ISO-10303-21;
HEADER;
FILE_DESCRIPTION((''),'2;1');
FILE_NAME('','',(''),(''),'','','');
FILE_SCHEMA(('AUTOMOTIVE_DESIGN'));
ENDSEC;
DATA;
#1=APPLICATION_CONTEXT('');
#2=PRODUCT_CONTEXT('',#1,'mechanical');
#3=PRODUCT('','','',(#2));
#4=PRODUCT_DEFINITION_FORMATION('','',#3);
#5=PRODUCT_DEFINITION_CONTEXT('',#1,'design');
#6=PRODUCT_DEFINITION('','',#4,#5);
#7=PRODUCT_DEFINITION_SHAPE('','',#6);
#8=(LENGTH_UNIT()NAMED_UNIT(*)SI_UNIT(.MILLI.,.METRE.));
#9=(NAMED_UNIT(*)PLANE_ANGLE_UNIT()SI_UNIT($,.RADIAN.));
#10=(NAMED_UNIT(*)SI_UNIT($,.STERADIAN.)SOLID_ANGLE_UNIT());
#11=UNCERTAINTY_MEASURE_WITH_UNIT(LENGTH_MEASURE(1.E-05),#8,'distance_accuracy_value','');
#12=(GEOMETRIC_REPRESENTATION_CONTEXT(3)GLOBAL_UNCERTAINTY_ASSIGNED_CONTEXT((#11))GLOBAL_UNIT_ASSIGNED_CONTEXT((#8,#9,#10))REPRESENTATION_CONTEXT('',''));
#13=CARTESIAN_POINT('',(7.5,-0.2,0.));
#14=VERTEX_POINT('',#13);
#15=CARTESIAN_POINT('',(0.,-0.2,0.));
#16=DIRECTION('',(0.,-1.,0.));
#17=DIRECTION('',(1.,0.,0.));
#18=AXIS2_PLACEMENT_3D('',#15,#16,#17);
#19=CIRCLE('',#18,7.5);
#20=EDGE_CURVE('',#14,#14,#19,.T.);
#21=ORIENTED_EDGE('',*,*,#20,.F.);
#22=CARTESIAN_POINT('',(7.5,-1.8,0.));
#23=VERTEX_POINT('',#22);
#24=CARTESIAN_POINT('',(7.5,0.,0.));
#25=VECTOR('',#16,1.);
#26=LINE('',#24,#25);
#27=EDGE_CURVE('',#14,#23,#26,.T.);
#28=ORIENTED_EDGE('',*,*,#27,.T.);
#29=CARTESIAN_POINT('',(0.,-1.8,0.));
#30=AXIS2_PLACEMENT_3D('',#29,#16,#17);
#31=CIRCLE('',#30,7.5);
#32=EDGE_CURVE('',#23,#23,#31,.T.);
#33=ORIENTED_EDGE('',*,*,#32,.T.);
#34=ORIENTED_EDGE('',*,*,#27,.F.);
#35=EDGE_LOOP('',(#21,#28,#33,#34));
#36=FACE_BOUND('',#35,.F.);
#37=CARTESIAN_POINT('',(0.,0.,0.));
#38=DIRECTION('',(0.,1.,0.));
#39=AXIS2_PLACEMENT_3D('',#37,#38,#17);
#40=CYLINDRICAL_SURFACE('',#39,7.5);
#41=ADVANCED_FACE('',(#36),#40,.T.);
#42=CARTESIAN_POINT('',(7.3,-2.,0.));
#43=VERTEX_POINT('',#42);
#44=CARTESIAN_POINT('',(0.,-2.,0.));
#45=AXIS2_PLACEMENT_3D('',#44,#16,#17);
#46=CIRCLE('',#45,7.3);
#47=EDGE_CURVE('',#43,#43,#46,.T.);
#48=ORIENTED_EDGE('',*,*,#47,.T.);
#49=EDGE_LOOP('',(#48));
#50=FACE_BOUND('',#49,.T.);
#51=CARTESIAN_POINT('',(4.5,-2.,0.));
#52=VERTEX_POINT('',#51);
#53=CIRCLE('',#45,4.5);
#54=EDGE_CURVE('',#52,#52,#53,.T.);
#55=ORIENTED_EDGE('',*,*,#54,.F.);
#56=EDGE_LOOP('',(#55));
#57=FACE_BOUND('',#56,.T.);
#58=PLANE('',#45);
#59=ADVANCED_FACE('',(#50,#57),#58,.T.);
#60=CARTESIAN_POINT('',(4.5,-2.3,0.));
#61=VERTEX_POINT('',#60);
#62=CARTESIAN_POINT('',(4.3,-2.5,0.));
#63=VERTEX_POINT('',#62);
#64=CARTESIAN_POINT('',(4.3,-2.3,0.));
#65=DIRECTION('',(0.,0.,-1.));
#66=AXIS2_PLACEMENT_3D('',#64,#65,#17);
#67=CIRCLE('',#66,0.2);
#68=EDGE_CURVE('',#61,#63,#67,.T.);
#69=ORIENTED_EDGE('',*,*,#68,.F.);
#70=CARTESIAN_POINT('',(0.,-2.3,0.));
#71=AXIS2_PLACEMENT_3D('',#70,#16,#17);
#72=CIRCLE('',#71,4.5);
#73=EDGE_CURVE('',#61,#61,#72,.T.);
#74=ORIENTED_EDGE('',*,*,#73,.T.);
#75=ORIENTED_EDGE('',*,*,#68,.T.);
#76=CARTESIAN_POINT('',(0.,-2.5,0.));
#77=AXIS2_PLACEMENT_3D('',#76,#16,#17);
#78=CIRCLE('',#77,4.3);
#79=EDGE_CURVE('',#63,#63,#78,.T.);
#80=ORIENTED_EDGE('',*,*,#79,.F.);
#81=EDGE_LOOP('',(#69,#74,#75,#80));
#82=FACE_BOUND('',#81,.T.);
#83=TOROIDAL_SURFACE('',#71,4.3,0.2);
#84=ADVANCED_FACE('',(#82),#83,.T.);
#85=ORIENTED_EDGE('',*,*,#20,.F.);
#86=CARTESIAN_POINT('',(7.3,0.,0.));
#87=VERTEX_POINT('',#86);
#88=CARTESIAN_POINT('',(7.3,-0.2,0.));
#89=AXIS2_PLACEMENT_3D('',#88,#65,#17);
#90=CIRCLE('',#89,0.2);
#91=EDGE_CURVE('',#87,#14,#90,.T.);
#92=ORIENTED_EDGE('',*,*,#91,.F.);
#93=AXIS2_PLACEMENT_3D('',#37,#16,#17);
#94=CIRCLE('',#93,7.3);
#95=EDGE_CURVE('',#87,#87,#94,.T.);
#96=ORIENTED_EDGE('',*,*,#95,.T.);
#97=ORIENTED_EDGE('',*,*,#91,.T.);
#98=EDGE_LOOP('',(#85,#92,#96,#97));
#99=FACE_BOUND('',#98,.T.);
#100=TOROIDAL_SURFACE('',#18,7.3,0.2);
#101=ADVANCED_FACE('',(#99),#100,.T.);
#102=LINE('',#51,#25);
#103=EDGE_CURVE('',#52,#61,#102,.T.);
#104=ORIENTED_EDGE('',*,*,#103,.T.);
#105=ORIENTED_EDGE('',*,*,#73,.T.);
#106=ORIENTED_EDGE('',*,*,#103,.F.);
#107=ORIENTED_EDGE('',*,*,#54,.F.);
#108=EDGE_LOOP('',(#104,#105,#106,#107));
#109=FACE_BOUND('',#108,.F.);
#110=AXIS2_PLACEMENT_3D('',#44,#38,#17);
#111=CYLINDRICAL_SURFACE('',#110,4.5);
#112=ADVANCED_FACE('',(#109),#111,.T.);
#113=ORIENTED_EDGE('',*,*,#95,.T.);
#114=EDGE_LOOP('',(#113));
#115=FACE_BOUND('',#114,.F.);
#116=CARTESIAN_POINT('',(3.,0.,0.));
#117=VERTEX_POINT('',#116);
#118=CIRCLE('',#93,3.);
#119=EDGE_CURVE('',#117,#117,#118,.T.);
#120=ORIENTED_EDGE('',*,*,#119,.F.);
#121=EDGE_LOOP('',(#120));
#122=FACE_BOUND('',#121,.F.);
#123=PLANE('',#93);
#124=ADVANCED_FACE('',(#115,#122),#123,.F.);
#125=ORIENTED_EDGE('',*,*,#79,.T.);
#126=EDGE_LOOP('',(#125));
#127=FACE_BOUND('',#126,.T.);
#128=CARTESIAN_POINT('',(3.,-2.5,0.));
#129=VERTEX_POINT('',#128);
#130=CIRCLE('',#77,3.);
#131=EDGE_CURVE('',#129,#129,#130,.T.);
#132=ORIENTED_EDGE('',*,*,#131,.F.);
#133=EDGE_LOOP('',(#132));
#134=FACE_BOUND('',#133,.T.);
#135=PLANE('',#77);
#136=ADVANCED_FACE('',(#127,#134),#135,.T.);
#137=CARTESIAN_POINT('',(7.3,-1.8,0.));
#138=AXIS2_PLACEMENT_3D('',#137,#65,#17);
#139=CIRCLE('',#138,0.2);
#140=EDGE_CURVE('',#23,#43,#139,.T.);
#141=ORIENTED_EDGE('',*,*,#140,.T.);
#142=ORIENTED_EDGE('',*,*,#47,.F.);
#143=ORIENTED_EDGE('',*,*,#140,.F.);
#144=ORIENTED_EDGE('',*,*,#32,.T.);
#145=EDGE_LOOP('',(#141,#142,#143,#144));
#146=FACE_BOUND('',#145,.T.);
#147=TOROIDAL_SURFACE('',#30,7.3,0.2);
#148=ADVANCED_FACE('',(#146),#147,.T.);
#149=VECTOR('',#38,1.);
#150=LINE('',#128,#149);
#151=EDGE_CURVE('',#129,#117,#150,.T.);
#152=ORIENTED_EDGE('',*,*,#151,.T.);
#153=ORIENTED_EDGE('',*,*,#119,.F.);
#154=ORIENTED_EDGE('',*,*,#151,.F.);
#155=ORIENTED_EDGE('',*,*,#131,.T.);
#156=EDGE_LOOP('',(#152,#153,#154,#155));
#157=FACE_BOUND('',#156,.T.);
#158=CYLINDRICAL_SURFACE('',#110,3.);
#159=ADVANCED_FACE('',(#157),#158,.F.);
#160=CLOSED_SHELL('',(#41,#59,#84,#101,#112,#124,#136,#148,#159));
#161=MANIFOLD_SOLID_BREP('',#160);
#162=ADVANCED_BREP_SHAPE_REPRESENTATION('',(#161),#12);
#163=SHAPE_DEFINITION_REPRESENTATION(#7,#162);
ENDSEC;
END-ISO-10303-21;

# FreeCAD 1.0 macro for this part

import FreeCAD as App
import Part
import Sketcher
Q = App.Units.Quantity


def edges_at(feature, points):
    """Names of the edges that pass closest to the given points."""
    edges = feature.Shape.Edges
    near = lambda p: min(range(len(edges)), key=lambda i: edges[i].distToShape(Part.Vertex(*p))[0])
    return sorted({f"Edge{near(p) + 1}" for p in points})

doc = App.newDocument("Part")
params = doc.addObject("Spreadsheet::Sheet", "Params")
for row, (alias, value) in enumerate([
    ("sketch1_diameter", "15 mm"),
    ("sketch1_diameter2", "6 mm"),
    ("pad1_length", "2 mm"),
    ("sketch2_diameter", "9 mm"),
    ("sketch2_diameter2", "6 mm"),
    ("pad2_length", "0.5 mm"),
    ("fillet_radius", "0.2 mm"),
], start=1):
    params.set(f"A{row}", alias)
    params.set(f"B{row}", "=" + value)
    params.setAlias(f"B{row}", alias)

body = doc.addObject("PartDesign::Body", "Body")

sketch1 = body.newObject("Sketcher::SketchObject", "Sketch")
sketch1.AttachmentSupport = (doc.getObject("XZ_Plane"), [""])
sketch1.MapMode = "FlatFace"
sketch1.addGeometry([
    Part.Circle(App.Vector(0, 0, 0), App.Vector(0, 0, 1), 7.5),
    Part.Circle(App.Vector(0, 0, 0), App.Vector(0, 0, 1), 3),
], False)
sketch1.addConstraint([
    Sketcher.Constraint("Coincident", 0, 3, -1, 1),
    Sketcher.Constraint("Coincident", 1, 3, -1, 1),
    Sketcher.Constraint("Diameter", 0, Q("15 mm")),
    Sketcher.Constraint("Diameter", 1, Q("6 mm")),
])
sketch1.setExpression("Constraints[2]", "Params.sketch1_diameter")
sketch1.setExpression("Constraints[3]", "Params.sketch1_diameter2")
pad1 = body.newObject("PartDesign::Pad", "Pad")
pad1.Profile = sketch1
pad1.setExpression("Length", "Params.pad1_length")

sketch2 = body.newObject("Sketcher::SketchObject", "Sketch001")
sketch2.AttachmentSupport = (doc.getObject("XZ_Plane"), [""])
sketch2.MapMode = "FlatFace"
sketch2.AttachmentOffset = App.Placement(App.Vector(0, 0, 2), App.Rotation())
sketch2.addGeometry([
    Part.Circle(App.Vector(0, 0, 0), App.Vector(0, 0, 1), 4.5),
    Part.Circle(App.Vector(0, 0, 0), App.Vector(0, 0, 1), 3),
], False)
sketch2.addConstraint([
    Sketcher.Constraint("Coincident", 0, 3, -1, 1),
    Sketcher.Constraint("Coincident", 1, 3, -1, 1),
    Sketcher.Constraint("Diameter", 0, Q("9 mm")),
    Sketcher.Constraint("Diameter", 1, Q("6 mm")),
])
sketch2.setExpression("Constraints[2]", "Params.sketch2_diameter")
sketch2.setExpression("Constraints[3]", "Params.sketch2_diameter2")
pad2 = body.newObject("PartDesign::Pad", "Pad001")
pad2.Profile = sketch2
pad2.setExpression("Length", "Params.pad2_length")
doc.recompute()

fillet = body.newObject("PartDesign::Fillet", "Fillet")
fillet.Base = (pad2, edges_at(pad2, [(-7.5, -2, 0), (-7.5, 0, 0), (-4.5, -2.5, 0)]))
fillet.setExpression("Radius", "Params.fillet_radius")

doc.recompute()
